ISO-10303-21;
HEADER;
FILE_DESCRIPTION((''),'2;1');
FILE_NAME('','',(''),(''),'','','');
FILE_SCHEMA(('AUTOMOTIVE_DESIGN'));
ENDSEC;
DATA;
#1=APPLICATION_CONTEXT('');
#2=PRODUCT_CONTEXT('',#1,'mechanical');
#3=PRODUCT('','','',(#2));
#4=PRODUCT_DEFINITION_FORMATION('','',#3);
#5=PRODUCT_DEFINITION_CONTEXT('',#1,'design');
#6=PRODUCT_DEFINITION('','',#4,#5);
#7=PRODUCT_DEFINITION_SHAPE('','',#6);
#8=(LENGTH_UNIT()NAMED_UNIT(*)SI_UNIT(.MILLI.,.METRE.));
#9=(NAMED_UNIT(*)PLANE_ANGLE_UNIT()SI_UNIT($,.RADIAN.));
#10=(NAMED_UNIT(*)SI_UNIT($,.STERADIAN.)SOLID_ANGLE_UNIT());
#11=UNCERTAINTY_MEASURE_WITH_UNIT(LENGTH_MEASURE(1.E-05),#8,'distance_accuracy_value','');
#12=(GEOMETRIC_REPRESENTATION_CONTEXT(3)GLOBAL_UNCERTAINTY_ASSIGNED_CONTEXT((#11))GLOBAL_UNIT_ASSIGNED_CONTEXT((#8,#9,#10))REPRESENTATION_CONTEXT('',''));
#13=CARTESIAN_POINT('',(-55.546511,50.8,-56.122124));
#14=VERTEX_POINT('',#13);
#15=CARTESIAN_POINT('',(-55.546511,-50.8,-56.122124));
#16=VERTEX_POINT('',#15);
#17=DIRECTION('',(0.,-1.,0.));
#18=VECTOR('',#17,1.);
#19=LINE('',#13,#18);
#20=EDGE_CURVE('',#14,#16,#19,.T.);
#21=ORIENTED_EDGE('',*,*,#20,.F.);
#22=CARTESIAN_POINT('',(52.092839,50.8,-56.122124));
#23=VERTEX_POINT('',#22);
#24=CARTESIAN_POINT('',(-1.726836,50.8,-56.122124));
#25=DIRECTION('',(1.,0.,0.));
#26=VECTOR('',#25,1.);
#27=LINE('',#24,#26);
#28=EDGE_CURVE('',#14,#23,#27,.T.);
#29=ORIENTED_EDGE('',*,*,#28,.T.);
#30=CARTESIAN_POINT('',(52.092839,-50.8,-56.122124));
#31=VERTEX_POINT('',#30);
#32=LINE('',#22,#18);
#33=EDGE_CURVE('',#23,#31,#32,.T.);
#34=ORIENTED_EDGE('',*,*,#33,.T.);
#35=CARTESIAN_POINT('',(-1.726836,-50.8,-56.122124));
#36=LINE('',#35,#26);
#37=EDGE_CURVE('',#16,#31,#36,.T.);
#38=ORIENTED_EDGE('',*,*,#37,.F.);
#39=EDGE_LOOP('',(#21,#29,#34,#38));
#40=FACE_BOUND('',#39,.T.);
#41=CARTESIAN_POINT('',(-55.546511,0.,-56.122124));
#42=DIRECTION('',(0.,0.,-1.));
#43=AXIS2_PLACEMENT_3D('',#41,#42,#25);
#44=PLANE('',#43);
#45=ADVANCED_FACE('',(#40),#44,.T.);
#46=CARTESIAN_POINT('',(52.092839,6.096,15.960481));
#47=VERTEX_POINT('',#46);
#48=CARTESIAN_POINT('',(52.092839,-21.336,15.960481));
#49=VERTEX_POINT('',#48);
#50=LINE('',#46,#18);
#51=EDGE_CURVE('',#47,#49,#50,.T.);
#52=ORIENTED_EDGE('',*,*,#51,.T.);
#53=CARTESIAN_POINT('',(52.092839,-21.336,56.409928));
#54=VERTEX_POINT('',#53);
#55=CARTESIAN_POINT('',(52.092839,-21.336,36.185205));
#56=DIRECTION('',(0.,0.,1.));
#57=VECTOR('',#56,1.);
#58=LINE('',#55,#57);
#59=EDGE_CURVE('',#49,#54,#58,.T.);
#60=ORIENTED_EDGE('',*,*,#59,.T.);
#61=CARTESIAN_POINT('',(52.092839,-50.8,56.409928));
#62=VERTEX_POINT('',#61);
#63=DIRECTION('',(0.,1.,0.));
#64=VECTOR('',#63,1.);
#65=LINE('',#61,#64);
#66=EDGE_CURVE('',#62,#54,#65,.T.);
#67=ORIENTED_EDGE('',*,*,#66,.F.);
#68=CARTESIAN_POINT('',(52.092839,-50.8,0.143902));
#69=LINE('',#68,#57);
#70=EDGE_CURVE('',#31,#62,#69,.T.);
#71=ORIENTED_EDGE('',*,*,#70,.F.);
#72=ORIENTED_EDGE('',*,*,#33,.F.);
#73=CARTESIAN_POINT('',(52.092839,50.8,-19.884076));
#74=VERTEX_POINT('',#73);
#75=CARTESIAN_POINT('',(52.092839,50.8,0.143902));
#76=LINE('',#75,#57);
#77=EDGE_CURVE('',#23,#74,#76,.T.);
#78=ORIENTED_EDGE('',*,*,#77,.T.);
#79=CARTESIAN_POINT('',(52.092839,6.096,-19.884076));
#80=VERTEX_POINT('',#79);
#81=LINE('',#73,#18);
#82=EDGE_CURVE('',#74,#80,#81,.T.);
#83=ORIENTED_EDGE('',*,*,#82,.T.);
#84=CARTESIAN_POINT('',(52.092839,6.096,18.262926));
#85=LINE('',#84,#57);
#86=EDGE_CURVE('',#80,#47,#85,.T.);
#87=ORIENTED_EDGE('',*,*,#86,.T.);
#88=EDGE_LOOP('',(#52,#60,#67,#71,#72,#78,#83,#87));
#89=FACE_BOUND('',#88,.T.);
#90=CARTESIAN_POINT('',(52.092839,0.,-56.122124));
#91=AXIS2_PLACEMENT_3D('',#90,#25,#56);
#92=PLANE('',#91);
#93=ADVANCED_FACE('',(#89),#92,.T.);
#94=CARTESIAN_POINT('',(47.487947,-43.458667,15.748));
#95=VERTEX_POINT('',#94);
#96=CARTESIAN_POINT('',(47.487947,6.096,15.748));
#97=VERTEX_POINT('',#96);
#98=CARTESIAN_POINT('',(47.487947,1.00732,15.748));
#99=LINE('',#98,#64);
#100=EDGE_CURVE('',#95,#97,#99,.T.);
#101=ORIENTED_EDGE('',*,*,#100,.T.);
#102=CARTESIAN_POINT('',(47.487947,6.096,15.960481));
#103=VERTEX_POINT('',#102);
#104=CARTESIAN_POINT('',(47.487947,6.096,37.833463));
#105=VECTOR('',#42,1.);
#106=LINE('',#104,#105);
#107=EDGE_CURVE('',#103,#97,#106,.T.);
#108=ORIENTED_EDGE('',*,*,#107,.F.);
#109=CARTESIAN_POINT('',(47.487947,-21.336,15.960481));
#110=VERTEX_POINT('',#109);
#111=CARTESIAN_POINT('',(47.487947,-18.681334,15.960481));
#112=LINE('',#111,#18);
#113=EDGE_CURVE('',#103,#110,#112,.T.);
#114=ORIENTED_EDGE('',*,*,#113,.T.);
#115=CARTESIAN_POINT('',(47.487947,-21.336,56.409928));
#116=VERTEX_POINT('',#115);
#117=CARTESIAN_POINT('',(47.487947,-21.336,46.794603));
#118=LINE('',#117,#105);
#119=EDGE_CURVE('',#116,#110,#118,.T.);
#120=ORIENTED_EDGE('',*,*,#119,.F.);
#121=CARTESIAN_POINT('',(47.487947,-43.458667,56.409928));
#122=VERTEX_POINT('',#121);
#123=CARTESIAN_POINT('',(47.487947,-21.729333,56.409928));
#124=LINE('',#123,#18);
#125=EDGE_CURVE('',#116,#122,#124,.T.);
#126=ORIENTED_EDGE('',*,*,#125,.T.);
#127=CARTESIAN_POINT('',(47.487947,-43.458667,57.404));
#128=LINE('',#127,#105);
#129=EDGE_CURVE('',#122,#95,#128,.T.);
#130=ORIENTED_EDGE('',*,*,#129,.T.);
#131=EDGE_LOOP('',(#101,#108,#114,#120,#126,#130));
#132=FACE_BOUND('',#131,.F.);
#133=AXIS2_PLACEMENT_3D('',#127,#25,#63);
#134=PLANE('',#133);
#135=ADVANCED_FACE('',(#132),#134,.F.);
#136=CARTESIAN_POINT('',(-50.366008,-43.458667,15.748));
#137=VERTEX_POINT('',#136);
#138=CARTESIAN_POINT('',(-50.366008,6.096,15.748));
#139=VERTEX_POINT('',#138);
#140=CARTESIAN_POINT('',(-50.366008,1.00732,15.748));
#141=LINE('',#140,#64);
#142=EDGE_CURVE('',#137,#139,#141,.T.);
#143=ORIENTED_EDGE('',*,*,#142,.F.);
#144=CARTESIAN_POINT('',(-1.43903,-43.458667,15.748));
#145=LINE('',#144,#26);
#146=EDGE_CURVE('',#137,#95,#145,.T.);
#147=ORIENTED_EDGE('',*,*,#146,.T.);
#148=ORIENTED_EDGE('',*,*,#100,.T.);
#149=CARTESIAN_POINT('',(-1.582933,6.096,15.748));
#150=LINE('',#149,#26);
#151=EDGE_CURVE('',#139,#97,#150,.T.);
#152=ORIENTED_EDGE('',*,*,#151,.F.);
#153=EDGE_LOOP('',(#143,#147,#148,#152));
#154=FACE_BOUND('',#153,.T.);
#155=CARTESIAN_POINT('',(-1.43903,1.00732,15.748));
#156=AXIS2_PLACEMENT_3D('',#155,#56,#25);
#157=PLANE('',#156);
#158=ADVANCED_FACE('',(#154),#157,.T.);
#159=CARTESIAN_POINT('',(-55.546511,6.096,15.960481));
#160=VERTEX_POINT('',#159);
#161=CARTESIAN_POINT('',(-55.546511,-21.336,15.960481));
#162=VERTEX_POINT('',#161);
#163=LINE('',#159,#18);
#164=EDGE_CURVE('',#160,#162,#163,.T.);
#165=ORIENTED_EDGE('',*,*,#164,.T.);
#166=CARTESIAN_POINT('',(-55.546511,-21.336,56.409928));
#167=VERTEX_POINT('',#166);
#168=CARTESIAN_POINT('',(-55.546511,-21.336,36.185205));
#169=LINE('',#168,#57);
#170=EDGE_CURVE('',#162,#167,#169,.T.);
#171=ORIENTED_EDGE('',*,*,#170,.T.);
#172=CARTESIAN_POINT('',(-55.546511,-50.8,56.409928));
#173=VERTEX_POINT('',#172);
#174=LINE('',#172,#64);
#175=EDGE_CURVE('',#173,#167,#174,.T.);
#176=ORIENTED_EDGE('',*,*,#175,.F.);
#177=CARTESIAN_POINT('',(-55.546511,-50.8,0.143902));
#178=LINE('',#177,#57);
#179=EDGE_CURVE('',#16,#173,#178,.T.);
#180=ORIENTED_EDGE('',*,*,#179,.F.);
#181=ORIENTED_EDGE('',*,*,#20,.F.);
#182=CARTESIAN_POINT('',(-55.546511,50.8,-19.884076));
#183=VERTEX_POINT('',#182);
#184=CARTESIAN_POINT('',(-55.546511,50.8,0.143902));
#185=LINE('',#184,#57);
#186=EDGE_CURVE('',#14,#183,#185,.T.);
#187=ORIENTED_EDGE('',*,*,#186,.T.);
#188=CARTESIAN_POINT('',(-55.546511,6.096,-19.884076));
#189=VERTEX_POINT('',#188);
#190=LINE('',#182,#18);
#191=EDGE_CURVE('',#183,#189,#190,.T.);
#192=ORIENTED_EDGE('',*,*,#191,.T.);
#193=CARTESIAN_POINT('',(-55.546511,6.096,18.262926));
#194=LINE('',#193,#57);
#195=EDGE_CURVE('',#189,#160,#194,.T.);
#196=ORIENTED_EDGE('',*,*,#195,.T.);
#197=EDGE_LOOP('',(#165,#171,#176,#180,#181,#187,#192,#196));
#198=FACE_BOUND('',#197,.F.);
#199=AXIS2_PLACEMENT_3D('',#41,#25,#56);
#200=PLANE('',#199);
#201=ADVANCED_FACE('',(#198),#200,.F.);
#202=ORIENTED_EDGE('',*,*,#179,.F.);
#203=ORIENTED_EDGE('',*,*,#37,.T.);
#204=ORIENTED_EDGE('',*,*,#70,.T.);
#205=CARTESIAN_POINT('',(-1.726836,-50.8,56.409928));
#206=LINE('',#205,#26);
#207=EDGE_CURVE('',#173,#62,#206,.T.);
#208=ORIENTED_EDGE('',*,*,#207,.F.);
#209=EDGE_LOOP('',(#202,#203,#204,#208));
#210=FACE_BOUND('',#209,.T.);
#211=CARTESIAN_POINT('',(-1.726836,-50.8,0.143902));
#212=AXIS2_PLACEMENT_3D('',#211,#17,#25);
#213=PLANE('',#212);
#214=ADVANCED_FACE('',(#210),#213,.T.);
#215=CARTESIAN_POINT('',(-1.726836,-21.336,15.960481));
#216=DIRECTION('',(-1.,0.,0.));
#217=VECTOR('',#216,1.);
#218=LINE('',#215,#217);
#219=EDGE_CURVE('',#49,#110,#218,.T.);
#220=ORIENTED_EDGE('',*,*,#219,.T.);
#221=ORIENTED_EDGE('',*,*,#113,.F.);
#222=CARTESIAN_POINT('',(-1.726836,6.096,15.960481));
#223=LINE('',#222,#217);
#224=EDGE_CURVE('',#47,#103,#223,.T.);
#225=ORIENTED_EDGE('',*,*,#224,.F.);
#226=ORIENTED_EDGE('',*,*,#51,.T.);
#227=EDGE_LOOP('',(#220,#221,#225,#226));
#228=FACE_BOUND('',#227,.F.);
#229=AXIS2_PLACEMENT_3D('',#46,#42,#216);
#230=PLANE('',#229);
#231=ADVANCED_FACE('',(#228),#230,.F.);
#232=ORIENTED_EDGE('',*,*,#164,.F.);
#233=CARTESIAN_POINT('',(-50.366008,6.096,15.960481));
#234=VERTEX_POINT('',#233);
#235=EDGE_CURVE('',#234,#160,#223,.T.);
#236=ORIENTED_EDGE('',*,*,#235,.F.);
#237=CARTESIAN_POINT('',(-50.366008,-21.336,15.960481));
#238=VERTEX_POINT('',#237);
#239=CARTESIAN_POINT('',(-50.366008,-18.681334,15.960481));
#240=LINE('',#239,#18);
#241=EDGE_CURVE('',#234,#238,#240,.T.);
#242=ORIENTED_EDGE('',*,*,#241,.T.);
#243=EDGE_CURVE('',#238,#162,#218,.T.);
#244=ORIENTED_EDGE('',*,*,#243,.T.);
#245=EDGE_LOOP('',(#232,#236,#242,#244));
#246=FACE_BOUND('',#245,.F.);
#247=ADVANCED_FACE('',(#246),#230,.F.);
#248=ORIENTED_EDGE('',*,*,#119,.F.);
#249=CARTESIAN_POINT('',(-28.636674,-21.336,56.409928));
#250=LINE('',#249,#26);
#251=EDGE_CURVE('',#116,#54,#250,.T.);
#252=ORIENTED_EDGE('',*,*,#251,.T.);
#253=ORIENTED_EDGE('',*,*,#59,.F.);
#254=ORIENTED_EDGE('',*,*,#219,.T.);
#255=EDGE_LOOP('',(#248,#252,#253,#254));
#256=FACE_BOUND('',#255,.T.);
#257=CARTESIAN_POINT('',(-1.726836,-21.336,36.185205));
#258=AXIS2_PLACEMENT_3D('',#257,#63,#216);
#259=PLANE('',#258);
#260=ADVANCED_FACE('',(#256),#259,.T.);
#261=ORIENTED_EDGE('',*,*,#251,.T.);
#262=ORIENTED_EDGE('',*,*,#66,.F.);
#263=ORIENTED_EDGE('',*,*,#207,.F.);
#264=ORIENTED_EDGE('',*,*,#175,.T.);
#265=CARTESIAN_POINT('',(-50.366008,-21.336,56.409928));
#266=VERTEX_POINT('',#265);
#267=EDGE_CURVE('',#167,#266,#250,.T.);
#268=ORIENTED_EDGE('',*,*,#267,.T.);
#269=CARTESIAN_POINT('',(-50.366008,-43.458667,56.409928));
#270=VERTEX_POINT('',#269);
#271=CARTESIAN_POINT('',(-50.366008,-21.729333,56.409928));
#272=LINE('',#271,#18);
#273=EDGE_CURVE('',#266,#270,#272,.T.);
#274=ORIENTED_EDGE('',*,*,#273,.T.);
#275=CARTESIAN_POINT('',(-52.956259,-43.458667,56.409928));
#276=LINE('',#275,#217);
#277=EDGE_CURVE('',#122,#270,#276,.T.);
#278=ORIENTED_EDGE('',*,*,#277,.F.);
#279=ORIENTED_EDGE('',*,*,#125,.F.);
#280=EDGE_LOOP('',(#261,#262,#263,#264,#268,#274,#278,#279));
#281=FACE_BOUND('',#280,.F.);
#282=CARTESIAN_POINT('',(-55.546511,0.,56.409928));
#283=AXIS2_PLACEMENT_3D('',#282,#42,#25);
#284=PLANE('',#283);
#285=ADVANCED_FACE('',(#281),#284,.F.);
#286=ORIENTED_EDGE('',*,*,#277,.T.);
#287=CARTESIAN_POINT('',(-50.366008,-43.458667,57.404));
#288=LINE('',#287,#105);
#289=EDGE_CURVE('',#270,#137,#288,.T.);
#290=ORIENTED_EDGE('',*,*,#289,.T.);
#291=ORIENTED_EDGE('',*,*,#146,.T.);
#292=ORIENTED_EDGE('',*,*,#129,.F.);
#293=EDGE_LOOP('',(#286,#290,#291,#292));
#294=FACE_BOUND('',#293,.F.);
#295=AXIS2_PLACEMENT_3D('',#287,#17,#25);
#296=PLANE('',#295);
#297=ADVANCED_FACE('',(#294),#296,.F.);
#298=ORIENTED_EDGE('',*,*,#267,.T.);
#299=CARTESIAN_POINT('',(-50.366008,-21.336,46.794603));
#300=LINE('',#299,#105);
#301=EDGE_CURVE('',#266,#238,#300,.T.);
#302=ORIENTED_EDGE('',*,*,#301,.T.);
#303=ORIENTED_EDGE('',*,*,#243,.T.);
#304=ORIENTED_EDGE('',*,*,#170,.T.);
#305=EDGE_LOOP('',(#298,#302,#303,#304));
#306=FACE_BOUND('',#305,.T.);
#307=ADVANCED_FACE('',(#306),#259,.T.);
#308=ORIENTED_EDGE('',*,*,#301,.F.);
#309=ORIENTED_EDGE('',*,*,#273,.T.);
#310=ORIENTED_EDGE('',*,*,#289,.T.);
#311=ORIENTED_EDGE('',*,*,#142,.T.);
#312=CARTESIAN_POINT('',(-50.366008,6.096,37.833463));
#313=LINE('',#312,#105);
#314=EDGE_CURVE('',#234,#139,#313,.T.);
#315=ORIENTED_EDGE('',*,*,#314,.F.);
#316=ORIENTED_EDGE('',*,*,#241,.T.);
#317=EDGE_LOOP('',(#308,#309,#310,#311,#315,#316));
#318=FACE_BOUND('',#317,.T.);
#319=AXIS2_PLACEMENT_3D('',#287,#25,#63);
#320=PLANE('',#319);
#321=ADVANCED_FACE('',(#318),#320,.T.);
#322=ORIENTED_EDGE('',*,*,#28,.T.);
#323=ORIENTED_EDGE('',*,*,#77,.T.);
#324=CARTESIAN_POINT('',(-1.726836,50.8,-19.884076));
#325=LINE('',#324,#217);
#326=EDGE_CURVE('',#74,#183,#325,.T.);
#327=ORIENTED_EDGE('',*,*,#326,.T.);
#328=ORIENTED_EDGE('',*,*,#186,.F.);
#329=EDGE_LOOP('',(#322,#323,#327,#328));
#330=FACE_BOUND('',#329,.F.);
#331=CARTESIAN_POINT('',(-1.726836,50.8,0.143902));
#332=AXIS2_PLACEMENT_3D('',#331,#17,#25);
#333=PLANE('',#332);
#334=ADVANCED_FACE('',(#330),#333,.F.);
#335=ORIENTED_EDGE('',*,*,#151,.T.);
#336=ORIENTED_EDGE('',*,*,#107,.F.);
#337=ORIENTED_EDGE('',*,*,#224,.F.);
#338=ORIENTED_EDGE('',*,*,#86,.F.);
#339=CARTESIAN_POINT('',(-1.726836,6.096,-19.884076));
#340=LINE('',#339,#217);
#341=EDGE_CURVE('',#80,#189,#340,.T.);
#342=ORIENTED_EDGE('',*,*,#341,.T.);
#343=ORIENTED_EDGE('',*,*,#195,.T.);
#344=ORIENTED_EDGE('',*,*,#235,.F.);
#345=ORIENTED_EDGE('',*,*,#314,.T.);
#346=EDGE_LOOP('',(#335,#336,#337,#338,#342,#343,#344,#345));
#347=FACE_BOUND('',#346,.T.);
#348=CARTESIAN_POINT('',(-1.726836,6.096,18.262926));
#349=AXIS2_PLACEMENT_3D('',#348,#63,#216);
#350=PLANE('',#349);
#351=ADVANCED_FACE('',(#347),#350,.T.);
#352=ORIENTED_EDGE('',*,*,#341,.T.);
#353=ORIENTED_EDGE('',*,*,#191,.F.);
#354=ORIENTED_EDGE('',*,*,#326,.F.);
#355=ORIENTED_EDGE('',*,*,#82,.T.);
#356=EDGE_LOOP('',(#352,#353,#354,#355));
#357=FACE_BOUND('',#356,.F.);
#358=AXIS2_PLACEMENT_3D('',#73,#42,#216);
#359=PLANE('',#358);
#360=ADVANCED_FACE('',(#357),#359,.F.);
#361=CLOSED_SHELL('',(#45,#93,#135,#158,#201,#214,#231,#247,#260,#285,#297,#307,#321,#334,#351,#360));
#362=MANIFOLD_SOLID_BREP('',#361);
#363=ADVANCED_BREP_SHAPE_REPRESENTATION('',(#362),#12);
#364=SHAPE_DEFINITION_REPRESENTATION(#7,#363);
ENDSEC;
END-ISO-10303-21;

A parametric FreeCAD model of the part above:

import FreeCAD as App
import Part
import Sketcher

V = App.Vector
Q = App.Units.Quantity

doc = App.newDocument("Part")
body = doc.addObject("PartDesign::Body", "Body")

# Sketch on XZ plane
sketch1 = body.newObject("Sketcher::SketchObject", "Sketch")
sketch1.AttachmentSupport = (doc.getObject("XZ_Plane"), [""])
sketch1.MapMode = "FlatFace"
sketch1.addGeometry(Part.LineSegment(V(-55.546511, 56.409928, 0), V(-55.546511, -56.122124, 0)), False)
sketch1.addGeometry(Part.LineSegment(V(-55.546511, -56.122124, 0), V(52.092839, -56.122124, 0)), False)
sketch1.addGeometry(Part.LineSegment(V(52.092839, -56.122124, 0), V(52.092839, 56.409928, 0)), False)
sketch1.addGeometry(Part.LineSegment(V(52.092839, 56.409928, 0), V(-55.546511, 56.409928, 0)), False)
sketch1.addConstraint(Sketcher.Constraint("Coincident", 0, 2, 1, 1))
sketch1.addConstraint(Sketcher.Constraint("Coincident", 1, 2, 2, 1))
sketch1.addConstraint(Sketcher.Constraint("Coincident", 2, 2, 3, 1))
sketch1.addConstraint(Sketcher.Constraint("Coincident", 3, 2, 0, 1))
sketch1.addConstraint(Sketcher.Constraint("Vertical", 0))
sketch1.addConstraint(Sketcher.Constraint("Horizontal", 1))
sketch1.addConstraint(Sketcher.Constraint("Vertical", 2))
sketch1.addConstraint(Sketcher.Constraint("Horizontal", 3))
sketch1.addConstraint(Sketcher.Constraint("DistanceX", 1, 1, 1, 2, 107.63935))
sketch1.addConstraint(Sketcher.Constraint("DistanceY", 0, 2, 0, 1, 112.532053))
sketch1.addConstraint(Sketcher.Constraint("DistanceX", 0, 2, -1, 1, 55.546511))
sketch1.addConstraint(Sketcher.Constraint("DistanceY", -1, 1, 2, 2, 56.409928))
pad1 = body.newObject("PartDesign::Pad", "Pad")
pad1.Profile = sketch1
pad1.Type = "TwoLengths"
pad1.Length = Q("2 in")
pad1.Length2 = Q("2 in")

# Sketch on XZ plane
sketch2 = body.newObject("Sketcher::SketchObject", "Sketch001")
sketch2.AttachmentSupport = (doc.getObject("XZ_Plane"), [""])
sketch2.MapMode = "FlatFace"
sketch2.AttachmentOffset = App.Placement(V(0, 0, -2 * 25.4), App.Rotation())
sketch2.addGeometry(Part.LineSegment(V(52.092839, 56.409928, 0), V(52.092839, -19.884076, 0)), False)
sketch2.addGeometry(Part.LineSegment(V(52.092839, -19.884076, 0), V(-55.546511, -19.884076, 0)), False)
sketch2.addGeometry(Part.LineSegment(V(-55.546511, -19.884076, 0), V(-55.546511, 56.409928, 0)), False)
sketch2.addGeometry(Part.LineSegment(V(-55.546511, 56.409928, 0), V(52.092839, 56.409928, 0)), False)
sketch2.addConstraint(Sketcher.Constraint("Coincident", 0, 2, 1, 1))
sketch2.addConstraint(Sketcher.Constraint("Coincident", 1, 2, 2, 1))
sketch2.addConstraint(Sketcher.Constraint("Coincident", 2, 2, 3, 1))
sketch2.addConstraint(Sketcher.Constraint("Coincident", 3, 2, 0, 1))
sketch2.addConstraint(Sketcher.Constraint("Vertical", 0))
sketch2.addConstraint(Sketcher.Constraint("Horizontal", 1))
sketch2.addConstraint(Sketcher.Constraint("Vertical", 2))
sketch2.addConstraint(Sketcher.Constraint("Horizontal", 3))
sketch2.addConstraint(Sketcher.Constraint("DistanceX", 1, 2, 1, 1, 107.63935))
sketch2.addConstraint(Sketcher.Constraint("DistanceY", 0, 2, 0, 1, 76.294005))
sketch2.addConstraint(Sketcher.Constraint("DistanceX", -1, 1, 0, 2, 52.092839))
sketch2.addConstraint(Sketcher.Constraint("DistanceY", -1, 1, 2, 2, 56.409928))
pocket1 = body.newObject("PartDesign::Pocket", "Pocket")
pocket1.Profile = sketch2
pocket1.Length = Q("1.76 in")
pocket1.Reversed = True

# Sketch on XZ plane
sketch3 = body.newObject("Sketcher::SketchObject", "Sketch002")
sketch3.AttachmentSupport = (doc.getObject("XZ_Plane"), [""])
sketch3.MapMode = "FlatFace"
sketch3.AttachmentOffset = App.Placement(V(0, 0, -0.24 * 25.4), App.Rotation())
sketch3.addGeometry(Part.LineSegment(V(52.092839, 56.409929, 0), V(52.092839, 15.960481, 0)), False)
sketch3.addGeometry(Part.LineSegment(V(52.092839, 15.960481, 0), V(-55.546511, 15.960481, 0)), False)
sketch3.addGeometry(Part.LineSegment(V(-55.546511, 15.960481, 0), V(-55.546511, 56.409929, 0)), False)
sketch3.addGeometry(Part.LineSegment(V(-55.546511, 56.409929, 0), V(52.092839, 56.409929, 0)), False)
sketch3.addConstraint(Sketcher.Constraint("Coincident", 0, 2, 1, 1))
sketch3.addConstraint(Sketcher.Constraint("Coincident", 1, 2, 2, 1))
sketch3.addConstraint(Sketcher.Constraint("Coincident", 2, 2, 3, 1))
sketch3.addConstraint(Sketcher.Constraint("Coincident", 3, 2, 0, 1))
sketch3.addConstraint(Sketcher.Constraint("Vertical", 0))
sketch3.addConstraint(Sketcher.Constraint("Horizontal", 1))
sketch3.addConstraint(Sketcher.Constraint("Vertical", 2))
sketch3.addConstraint(Sketcher.Constraint("Horizontal", 3))
sketch3.addConstraint(Sketcher.Constraint("DistanceX", 1, 2, 1, 1, 107.63935))
sketch3.addConstraint(Sketcher.Constraint("DistanceY", 0, 2, 0, 1, 40.449448))
sketch3.addConstraint(Sketcher.Constraint("DistanceX", -1, 1, 0, 2, 52.092839))
sketch3.addConstraint(Sketcher.Constraint("DistanceY", -1, 1, 0, 2, 15.960481))
pocket2 = body.newObject("PartDesign::Pocket", "Pocket001")
pocket2.Profile = sketch3
pocket2.Length = Q("1.08 in")
pocket2.Reversed = True

# Sketch on XY plane
sketch4 = body.newObject("Sketcher::SketchObject", "Sketch003")
sketch4.AttachmentSupport = (doc.getObject("XY_Plane"), [""])
sketch4.MapMode = "FlatFace"
sketch4.AttachmentOffset = App.Placement(V(0, 0, 2.26 * 25.4), App.Rotation())
sketch4.addGeometry(Part.LineSegment(V(-50.366008, 45.473307, 0), V(-50.366008, -43.458667, 0)), False)
sketch4.addGeometry(Part.LineSegment(V(-50.366008, -43.458667, 0), V(47.487947, -43.458667, 0)), False)
sketch4.addGeometry(Part.LineSegment(V(47.487947, -43.458667, 0), V(47.487947, 45.473307, 0)), False)
sketch4.addGeometry(Part.LineSegment(V(47.487947, 45.473307, 0), V(-50.366008, 45.473307, 0)), False)
sketch4.addConstraint(Sketcher.Constraint("Coincident", 0, 2, 1, 1))
sketch4.addConstraint(Sketcher.Constraint("Coincident", 1, 2, 2, 1))
sketch4.addConstraint(Sketcher.Constraint("Coincident", 2, 2, 3, 1))
sketch4.addConstraint(Sketcher.Constraint("Coincident", 3, 2, 0, 1))
sketch4.addConstraint(Sketcher.Constraint("Vertical", 0))
sketch4.addConstraint(Sketcher.Constraint("Horizontal", 1))
sketch4.addConstraint(Sketcher.Constraint("Vertical", 2))
sketch4.addConstraint(Sketcher.Constraint("Horizontal", 3))
sketch4.addConstraint(Sketcher.Constraint("DistanceX", 1, 1, 1, 2, 97.853955))
sketch4.addConstraint(Sketcher.Constraint("DistanceY", 0, 2, 0, 1, 88.931974))
sketch4.addConstraint(Sketcher.Constraint("DistanceX", 0, 2, -1, 1, 50.366008))
sketch4.addConstraint(Sketcher.Constraint("DistanceY", 0, 2, -1, 1, 43.458667))
pocket3 = body.newObject("PartDesign::Pocket", "Pocket002")
pocket3.Profile = sketch4
pocket3.Length = Q("1.64 in")

doc.recompute()
